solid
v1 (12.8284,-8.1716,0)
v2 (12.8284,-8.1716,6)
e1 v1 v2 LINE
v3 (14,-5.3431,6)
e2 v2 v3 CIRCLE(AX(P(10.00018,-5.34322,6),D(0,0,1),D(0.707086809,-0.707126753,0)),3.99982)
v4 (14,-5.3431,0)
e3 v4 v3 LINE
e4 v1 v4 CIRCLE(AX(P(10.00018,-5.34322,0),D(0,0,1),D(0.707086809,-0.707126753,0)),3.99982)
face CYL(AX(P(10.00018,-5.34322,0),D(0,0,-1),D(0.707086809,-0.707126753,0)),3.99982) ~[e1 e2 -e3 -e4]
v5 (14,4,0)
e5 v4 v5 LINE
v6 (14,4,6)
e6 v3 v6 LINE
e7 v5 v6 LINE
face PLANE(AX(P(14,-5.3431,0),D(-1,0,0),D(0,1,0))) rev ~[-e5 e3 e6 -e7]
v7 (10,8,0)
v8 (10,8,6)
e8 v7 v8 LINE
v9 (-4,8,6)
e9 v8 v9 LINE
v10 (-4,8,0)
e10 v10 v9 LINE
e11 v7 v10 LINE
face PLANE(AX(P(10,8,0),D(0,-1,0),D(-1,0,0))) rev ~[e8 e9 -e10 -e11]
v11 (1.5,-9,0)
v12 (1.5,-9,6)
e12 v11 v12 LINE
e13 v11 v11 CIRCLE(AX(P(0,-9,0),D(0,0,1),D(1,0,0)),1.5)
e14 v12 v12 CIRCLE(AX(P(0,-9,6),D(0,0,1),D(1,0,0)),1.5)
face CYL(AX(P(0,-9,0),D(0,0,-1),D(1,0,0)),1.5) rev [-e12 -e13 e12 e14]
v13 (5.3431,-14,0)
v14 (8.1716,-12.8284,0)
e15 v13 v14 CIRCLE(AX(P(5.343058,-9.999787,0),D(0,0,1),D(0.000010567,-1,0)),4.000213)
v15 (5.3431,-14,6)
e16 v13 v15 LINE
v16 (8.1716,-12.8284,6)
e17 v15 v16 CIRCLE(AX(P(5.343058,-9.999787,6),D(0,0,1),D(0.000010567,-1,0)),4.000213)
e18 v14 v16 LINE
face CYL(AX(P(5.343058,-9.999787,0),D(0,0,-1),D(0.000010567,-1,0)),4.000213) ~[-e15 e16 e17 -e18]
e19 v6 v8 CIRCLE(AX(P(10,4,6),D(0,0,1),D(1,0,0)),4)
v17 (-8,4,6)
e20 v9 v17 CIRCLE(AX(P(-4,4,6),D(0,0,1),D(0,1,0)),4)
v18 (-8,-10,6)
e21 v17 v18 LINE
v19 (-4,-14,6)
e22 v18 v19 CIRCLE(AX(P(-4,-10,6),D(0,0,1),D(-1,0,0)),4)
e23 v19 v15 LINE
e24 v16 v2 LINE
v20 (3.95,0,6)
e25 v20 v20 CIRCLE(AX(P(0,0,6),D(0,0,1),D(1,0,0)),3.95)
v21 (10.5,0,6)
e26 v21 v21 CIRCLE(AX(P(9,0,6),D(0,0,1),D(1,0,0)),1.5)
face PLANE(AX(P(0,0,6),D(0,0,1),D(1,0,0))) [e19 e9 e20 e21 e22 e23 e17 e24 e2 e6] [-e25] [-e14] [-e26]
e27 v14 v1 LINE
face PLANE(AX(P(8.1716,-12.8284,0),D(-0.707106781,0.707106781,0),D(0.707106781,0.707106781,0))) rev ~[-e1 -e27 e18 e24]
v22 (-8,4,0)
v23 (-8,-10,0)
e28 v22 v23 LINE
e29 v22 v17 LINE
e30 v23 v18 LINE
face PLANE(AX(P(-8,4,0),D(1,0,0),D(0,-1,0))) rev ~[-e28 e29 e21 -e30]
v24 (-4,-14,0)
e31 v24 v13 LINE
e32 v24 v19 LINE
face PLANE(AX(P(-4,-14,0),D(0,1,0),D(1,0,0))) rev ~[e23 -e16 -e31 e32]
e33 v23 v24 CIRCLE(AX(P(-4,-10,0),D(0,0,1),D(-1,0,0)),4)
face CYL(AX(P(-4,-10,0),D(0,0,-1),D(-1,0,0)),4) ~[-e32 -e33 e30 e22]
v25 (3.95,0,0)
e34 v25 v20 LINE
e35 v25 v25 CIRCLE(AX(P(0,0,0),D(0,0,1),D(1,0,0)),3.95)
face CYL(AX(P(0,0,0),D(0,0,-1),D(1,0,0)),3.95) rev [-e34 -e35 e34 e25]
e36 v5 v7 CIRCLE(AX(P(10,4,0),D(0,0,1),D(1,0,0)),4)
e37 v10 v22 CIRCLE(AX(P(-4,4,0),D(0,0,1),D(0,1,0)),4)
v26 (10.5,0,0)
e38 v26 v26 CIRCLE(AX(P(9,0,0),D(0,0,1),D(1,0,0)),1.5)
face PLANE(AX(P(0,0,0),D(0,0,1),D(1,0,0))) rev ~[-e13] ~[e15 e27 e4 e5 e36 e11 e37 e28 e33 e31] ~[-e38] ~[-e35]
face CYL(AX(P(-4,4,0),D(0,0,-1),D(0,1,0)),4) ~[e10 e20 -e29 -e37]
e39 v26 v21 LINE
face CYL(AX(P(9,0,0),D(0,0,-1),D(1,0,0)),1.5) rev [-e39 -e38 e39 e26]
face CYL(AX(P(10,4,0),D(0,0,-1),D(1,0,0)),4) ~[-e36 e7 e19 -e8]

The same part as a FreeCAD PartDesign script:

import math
import FreeCAD as App
import Part
import Sketcher

V = App.Vector
Q = App.Units.Quantity

doc = App.newDocument("Part")
body = doc.addObject("PartDesign::Body", "Body")

sketch1 = body.newObject("Sketcher::SketchObject", "Sketch")
sketch1.AttachmentSupport = (doc.getObject("XY_Plane"), [""])
sketch1.MapMode = "FlatFace"
sketch1.addGeometry(Part.ArcOfCircle(Part.Circle(V(10, 4, 0), V(0, 0, 1), 4), math.radians(0), math.radians(90)), False)
sketch1.addGeometry(Part.LineSegment(V(10, 8, 0), V(-4, 8, 0)), False)
sketch1.addGeometry(Part.ArcOfCircle(Part.Circle(V(-4, 4, 0), V(0, 0, 1), 4), math.radians(90), math.radians(180)), False)
sketch1.addGeometry(Part.LineSegment(V(-8, 4, 0), V(-8, -10, 0)), False)
sketch1.addGeometry(Part.ArcOfCircle(Part.Circle(V(-4, -10, 0), V(0, 0, 1), 4), math.radians(180), math.radians(270)), False)
sketch1.addGeometry(Part.LineSegment(V(-4, -14, 0), V(5.3431, -14, 0)), False)
sketch1.addGeometry(Part.ArcOfCircle(Part.Circle(V(5.3431, -10, 0), V(0, 0, 1), 4), math.radians(-90), math.radians(-44.998987)), False)
sketch1.addGeometry(Part.LineSegment(V(8.1716, -12.8284, 0), V(12.8284, -8.1716, 0)), False)
sketch1.addGeometry(Part.ArcOfCircle(Part.Circle(V(10, -5.3431, 0), V(0, 0, 1), 4.000032), math.radians(-45.001013), math.radians(0)), False)
sketch1.addGeometry(Part.LineSegment(V(14, -5.3431, 0), V(14, 4, 0)), False)
sketch1.addGeometry(Part.Circle(V(0, -9, 0), V(0, 0, 1), 1.5), False)
sketch1.addGeometry(Part.Circle(V(0, 0, 0), V(0, 0, 1), 3.95), False)
sketch1.addGeometry(Part.Circle(V(9, 0, 0), V(0, 0, 1), 1.5), False)
sketch1.addConstraint(Sketcher.Constraint("Tangent", 0, 2, 1, 1))
sketch1.addConstraint(Sketcher.Constraint("Tangent", 1, 2, 2, 1))
sketch1.addConstraint(Sketcher.Constraint("Tangent", 2, 2, 3, 1))
sketch1.addConstraint(Sketcher.Constraint("Tangent", 3, 2, 4, 1))
sketch1.addConstraint(Sketcher.Constraint("Tangent", 4, 2, 5, 1))
sketch1.addConstraint(Sketcher.Constraint("Tangent", 5, 2, 6, 1))
sketch1.addConstraint(Sketcher.Constraint("Tangent", 6, 2, 7, 1))
sketch1.addConstraint(Sketcher.Constraint("Tangent", 7, 2, 8, 1))
sketch1.addConstraint(Sketcher.Constraint("Tangent", 8, 2, 9, 1))
sketch1.addConstraint(Sketcher.Constraint("Tangent", 9, 2, 0, 1))
sketch1.addConstraint(Sketcher.Constraint("Horizontal", 1))
sketch1.addConstraint(Sketcher.Constraint("Vertical", 3))
sketch1.addConstraint(Sketcher.Constraint("Horizontal", 5))
sketch1.addConstraint(Sketcher.Constraint("Vertical", 9))
sketch1.addConstraint(Sketcher.Constraint("Coincident", 11, 3, -1, 1))
sketch1.addConstraint(Sketcher.Constraint("Equal", 0, 2))
sketch1.addConstraint(Sketcher.Constraint("Equal", 2, 4))
sketch1.addConstraint(Sketcher.Constraint("Equal", 4, 6))
sketch1.addConstraint(Sketcher.Constraint("Equal", 6, 8))
sketch1.addConstraint(Sketcher.Constraint("Equal", 10, 12))
sketch1.addConstraint(Sketcher.Constraint("PointOnObject", 10, 3, -2))
sketch1.addConstraint(Sketcher.Constraint("PointOnObject", 12, 3, -1))
sketch1.addConstraint(Sketcher.Constraint("Equal", 1, 3))
sketch1.addConstraint(Sketcher.Constraint("Equal", 5, 9))
sketch1.addConstraint(Sketcher.Constraint("Diameter", 10, Q("3 mm")))
sketch1.addConstraint(Sketcher.Constraint("Radius", 0, Q("4 mm")))
sketch1.addConstraint(Sketcher.Constraint("Diameter", 11, Q("7.9 mm")))
sketch1.addConstraint(Sketcher.Constraint("DistanceX", 1, 2, 1, 1, Q("14 mm")))
sketch1.addConstraint(Sketcher.Constraint("DistanceX", -1, 1, 0, 3, Q("10 mm")))
sketch1.addConstraint(Sketcher.Constraint("DistanceY", -1, 1, 0, 3, Q("4 mm")))
sketch1.addConstraint(Sketcher.Constraint("DistanceY", 10, 3, -1, 1, Q("9 mm")))
sketch1.addConstraint(Sketcher.Constraint("DistanceX", -1, 1, 12, 3, Q("9 mm")))
sketch1.addConstraint(Sketcher.Constraint("DistanceX", 5, 1, 5, 2, Q("9.343 mm")))
pad1 = body.newObject("PartDesign::Pad", "Pad")
pad1.Profile = sketch1
pad1.Length = 6

doc.recompute()
